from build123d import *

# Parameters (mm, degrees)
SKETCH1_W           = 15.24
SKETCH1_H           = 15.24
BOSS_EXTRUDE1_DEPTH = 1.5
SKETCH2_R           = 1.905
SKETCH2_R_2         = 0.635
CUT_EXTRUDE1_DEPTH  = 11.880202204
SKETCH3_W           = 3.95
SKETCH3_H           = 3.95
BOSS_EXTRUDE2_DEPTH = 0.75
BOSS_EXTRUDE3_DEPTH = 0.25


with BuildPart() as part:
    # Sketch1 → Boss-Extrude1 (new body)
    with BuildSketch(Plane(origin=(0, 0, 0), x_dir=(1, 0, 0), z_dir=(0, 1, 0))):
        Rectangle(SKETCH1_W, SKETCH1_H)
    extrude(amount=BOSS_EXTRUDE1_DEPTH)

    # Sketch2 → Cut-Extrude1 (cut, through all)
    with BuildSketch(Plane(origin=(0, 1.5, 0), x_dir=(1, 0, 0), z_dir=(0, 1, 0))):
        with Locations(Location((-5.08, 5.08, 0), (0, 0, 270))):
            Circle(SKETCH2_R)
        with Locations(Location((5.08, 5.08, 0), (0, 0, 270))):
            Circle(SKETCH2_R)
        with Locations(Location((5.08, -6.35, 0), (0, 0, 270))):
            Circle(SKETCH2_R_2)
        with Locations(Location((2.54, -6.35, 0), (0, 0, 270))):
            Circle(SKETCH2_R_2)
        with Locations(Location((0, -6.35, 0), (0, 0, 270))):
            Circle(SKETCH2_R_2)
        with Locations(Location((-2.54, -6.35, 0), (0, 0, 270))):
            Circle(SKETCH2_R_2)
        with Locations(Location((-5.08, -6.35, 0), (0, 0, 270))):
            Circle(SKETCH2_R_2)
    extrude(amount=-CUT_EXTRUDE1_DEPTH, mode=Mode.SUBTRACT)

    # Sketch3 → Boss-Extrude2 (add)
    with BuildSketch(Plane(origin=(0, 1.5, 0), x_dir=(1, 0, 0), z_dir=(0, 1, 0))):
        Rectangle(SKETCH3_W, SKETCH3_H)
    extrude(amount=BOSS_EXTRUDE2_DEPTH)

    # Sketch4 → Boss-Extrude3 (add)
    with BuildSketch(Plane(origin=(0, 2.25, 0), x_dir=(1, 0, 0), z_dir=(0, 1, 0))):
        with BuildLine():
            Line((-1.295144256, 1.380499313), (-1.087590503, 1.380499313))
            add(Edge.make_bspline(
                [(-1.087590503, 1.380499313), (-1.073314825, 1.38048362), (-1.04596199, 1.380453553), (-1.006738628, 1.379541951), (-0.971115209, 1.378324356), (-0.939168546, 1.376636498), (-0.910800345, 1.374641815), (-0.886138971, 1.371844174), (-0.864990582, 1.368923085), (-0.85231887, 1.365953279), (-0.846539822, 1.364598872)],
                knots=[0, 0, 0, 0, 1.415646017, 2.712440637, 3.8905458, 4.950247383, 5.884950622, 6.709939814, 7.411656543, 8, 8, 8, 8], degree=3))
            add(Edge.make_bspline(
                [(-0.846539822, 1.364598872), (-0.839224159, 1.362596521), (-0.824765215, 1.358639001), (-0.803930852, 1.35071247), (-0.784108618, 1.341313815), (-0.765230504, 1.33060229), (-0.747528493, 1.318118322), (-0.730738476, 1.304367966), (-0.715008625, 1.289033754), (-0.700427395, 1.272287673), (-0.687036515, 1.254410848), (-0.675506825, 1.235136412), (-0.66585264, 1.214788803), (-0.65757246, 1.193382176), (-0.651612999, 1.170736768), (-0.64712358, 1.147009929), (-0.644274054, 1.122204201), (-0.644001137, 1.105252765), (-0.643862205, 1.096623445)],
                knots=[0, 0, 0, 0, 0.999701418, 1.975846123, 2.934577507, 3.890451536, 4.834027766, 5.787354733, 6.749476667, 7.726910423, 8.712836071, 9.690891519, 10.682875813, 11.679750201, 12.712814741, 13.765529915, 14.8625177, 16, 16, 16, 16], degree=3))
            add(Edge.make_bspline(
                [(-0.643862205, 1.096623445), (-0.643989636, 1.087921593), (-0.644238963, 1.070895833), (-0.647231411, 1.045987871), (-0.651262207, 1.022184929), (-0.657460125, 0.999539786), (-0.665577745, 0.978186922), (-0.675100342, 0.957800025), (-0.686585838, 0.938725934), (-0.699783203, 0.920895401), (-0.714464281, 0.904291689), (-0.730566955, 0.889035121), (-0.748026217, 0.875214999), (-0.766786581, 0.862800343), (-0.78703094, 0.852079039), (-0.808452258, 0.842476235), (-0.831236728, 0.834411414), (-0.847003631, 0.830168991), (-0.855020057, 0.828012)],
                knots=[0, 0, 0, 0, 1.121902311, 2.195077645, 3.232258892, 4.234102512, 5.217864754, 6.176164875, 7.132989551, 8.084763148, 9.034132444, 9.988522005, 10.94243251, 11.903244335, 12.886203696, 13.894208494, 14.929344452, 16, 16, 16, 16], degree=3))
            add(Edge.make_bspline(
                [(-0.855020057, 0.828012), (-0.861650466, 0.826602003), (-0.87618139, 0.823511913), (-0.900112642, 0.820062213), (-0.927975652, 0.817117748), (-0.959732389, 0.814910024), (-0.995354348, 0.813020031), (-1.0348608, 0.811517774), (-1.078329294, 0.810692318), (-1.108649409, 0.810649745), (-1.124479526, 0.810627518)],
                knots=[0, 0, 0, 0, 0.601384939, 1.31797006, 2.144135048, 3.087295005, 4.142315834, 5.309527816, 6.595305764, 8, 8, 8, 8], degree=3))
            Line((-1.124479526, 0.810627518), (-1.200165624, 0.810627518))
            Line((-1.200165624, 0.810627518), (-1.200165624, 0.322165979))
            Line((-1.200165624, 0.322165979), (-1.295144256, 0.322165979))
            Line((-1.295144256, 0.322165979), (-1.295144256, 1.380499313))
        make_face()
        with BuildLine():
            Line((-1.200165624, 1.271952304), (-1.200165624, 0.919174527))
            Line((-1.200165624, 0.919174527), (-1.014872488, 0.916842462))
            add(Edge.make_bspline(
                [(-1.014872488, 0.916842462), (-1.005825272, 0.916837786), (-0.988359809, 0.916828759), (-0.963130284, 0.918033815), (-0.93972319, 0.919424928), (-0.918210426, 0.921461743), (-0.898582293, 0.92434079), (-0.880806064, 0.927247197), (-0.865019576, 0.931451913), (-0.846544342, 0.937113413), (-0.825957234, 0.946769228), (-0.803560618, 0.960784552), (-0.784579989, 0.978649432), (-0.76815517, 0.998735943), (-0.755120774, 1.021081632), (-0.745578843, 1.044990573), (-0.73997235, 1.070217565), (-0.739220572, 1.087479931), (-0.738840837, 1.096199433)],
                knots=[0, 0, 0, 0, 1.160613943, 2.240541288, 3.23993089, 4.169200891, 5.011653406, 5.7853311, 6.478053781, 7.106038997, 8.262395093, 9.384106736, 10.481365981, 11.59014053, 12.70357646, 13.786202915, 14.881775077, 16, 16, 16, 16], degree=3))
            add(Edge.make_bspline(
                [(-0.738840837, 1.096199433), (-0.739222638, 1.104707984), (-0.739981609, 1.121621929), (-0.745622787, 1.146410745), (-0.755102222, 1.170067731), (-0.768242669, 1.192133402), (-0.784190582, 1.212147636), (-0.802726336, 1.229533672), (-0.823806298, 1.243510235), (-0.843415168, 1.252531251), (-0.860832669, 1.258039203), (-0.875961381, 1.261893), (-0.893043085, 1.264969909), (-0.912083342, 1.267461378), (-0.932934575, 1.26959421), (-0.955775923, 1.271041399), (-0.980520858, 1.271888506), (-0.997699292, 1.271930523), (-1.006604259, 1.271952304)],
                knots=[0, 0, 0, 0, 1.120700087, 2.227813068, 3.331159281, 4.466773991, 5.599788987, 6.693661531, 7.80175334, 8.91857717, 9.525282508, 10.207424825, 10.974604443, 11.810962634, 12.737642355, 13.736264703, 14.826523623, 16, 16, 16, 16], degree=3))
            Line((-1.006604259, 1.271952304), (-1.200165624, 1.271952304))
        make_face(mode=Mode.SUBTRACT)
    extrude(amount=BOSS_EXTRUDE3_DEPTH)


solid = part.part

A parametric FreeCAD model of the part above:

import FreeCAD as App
import Part
import Sketcher
from FreeCAD import Vector
Q = App.Units.Quantity

doc = App.newDocument("Part")
body = doc.addObject("PartDesign::Body", "Body")

# Sketch on XZ plane
sketch1 = body.newObject("Sketcher::SketchObject", "Sketch")
sketch1.AttachmentSupport = (doc.getObject("XZ_Plane"), [""])
sketch1.MapMode = "FlatFace"
sketch1.addGeometry([
    Part.LineSegment(Vector(-7.62, -7.62, 0), Vector(-7.62, 7.62, 0)),
    Part.LineSegment(Vector(-7.62, 7.62, 0), Vector(7.62, 7.62, 0)),
    Part.LineSegment(Vector(7.62, 7.62, 0), Vector(7.62, -7.62, 0)),
    Part.LineSegment(Vector(7.62, -7.62, 0), Vector(-7.62, -7.62, 0)),
], False)
sketch1.addConstraint([
    Sketcher.Constraint("Coincident", 0, 2, 1, 1),
    Sketcher.Constraint("Coincident", 1, 2, 2, 1),
    Sketcher.Constraint("Coincident", 2, 2, 3, 1),
    Sketcher.Constraint("Coincident", 3, 2, 0, 1),
    Sketcher.Constraint("Vertical", 0),
    Sketcher.Constraint("Horizontal", 1),
    Sketcher.Constraint("Vertical", 2),
    Sketcher.Constraint("Horizontal", 3),
    Sketcher.Constraint("Symmetric", 0, 2, 2, 2, -1, 1),
    Sketcher.Constraint("Equal", 3, 0),
    Sketcher.Constraint("DistanceX", 1, 1, 1, 2, Q("0.6 in")),
])
pad1 = body.newObject("PartDesign::Pad", "Pad")
pad1.Profile = sketch1
pad1.Length = 1.5
pad1.Reversed = True

# Sketch on XZ plane
sketch2 = body.newObject("Sketcher::SketchObject", "Sketch001")
sketch2.AttachmentSupport = (doc.getObject("XZ_Plane"), [""])
sketch2.MapMode = "FlatFace"
sketch2.AttachmentOffset = App.Placement(Vector(0, 0, -1.5), App.Rotation())
sketch2.addGeometry([
    Part.Circle(Vector(-5.08, -5.08, 0), Vector(0, 0, 1), 1.905),  # 0
    Part.Circle(Vector(5.08, -5.08, 0), Vector(0, 0, 1), 1.905),  # 1
    Part.Circle(Vector(5.08, 6.35, 0), Vector(0, 0, 1), 0.635),  # 2
    Part.Circle(Vector(2.54, 6.35, 0), Vector(0, 0, 1), 0.635),  # 3
    Part.Circle(Vector(0, 6.35, 0), Vector(0, 0, 1), 0.635),  # 4
    Part.Circle(Vector(-2.54, 6.35, 0), Vector(0, 0, 1), 0.635),  # 5
    Part.Circle(Vector(-5.08, 6.35, 0), Vector(0, 0, 1), 0.635),  # 6
], False)
sketch2.addConstraint([
    Sketcher.Constraint("Equal", 0, 1),
    Sketcher.Constraint("Equal", 2, 3),
    Sketcher.Constraint("Equal", 3, 4),
    Sketcher.Constraint("Equal", 4, 5),
    Sketcher.Constraint("Equal", 5, 6),
    Sketcher.Constraint("Symmetric", 0, 3, 1, 3, -2),
    Sketcher.Constraint("Symmetric", 3, 3, 5, 3, -2),
    Sketcher.Constraint("Symmetric", 2, 3, 6, 3, -2),
    Sketcher.Constraint("PointOnObject", 4, 3, -2),
    Sketcher.Constraint("Horizontal", 2, 3, 3, 3),
    Sketcher.Constraint("Horizontal", 3, 3, 4, 3),
    Sketcher.Constraint("Vertical", 1, 3, 2, 3),
    Sketcher.Constraint("Diameter", 0, Q("0.15 in")),
    Sketcher.Constraint("Diameter", 2, Q("0.05 in")),
    Sketcher.Constraint("DistanceX", 0, 3, -1, 1, Q("0.2 in")),
    Sketcher.Constraint("DistanceY", 0, 3, -1, 1, Q("0.2 in")),
    Sketcher.Constraint("DistanceX", -1, 1, 3, 3, Q("0.1 in")),
    Sketcher.Constraint("DistanceY", -1, 1, 2, 3, Q("0.25 in")),
])
pocket1 = body.newObject("PartDesign::Pocket", "Pocket")
pocket1.Profile = sketch2
pocket1.Type = "ThroughAll"
pocket1.Reversed = True

# Sketch on XZ plane
sketch3 = body.newObject("Sketcher::SketchObject", "Sketch002")
sketch3.AttachmentSupport = (doc.getObject("XZ_Plane"), [""])
sketch3.MapMode = "FlatFace"
sketch3.AttachmentOffset = App.Placement(Vector(0, 0, -1.5), App.Rotation())
sketch3.addGeometry([
    Part.LineSegment(Vector(-1.975, -1.975, 0), Vector(-1.975, 1.975, 0)),
    Part.LineSegment(Vector(-1.975, 1.975, 0), Vector(1.975, 1.975, 0)),
    Part.LineSegment(Vector(1.975, 1.975, 0), Vector(1.975, -1.975, 0)),
    Part.LineSegment(Vector(1.975, -1.975, 0), Vector(-1.975, -1.975, 0)),
], False)
sketch3.addConstraint([
    Sketcher.Constraint("Coincident", 0, 2, 1, 1),
    Sketcher.Constraint("Coincident", 1, 2, 2, 1),
    Sketcher.Constraint("Coincident", 2, 2, 3, 1),
    Sketcher.Constraint("Coincident", 3, 2, 0, 1),
    Sketcher.Constraint("Vertical", 0),
    Sketcher.Constraint("Horizontal", 1),
    Sketcher.Constraint("Vertical", 2),
    Sketcher.Constraint("Horizontal", 3),
    Sketcher.Constraint("Symmetric", 0, 2, 2, 2, -1, 1),
    Sketcher.Constraint("Equal", 3, 0),
    Sketcher.Constraint("DistanceX", 1, 1, 1, 2, 3.95),
])
pad2 = body.newObject("PartDesign::Pad", "Pad001")
pad2.Profile = sketch3
pad2.Length = 0.75
pad2.Reversed = True

# Sketch on XZ plane
sketch4 = body.newObject("Sketcher::SketchObject", "Sketch003")
sketch4.AttachmentSupport = (doc.getObject("XZ_Plane"), [""])
sketch4.MapMode = "FlatFace"
sketch4.AttachmentOffset = App.Placement(Vector(0, 0, -2.25), App.Rotation())
sketch4.addGeometry([
    Part.LineSegment(Vector(-1.087591, -1.380499, 0), Vector(-1.295144, -1.380499, 0)),  # 0
    Part.LineSegment(Vector(-1.295144, -1.380499, 0), Vector(-1.295144, -0.322166, 0)),  # 1
    Part.LineSegment(Vector(-1.295144, -0.322166, 0), Vector(-1.200166, -0.322166, 0)),  # 2
    Part.LineSegment(Vector(-1.200166, -0.322166, 0), Vector(-1.200166, -0.810628, 0)),  # 3
    Part.LineSegment(Vector(-1.200166, -0.810628, 0), Vector(-1.12448, -0.810628, 0)),  # 4
    Part.BSplineCurve([Vector(-0.85502, -0.828012, 0), Vector(-0.86165, -0.826602, 0), Vector(-0.876181, -0.823512, 0), Vector(-0.900113, -0.820062, 0), Vector(-0.927976, -0.817118, 0), Vector(-0.959732, -0.81491, 0), Vector(-0.995354, -0.81302, 0), Vector(-1.034861, -0.811518, 0), Vector(-1.078329, -0.810692, 0), Vector(-1.108649, -0.81065, 0), Vector(-1.12448, -0.810628, 0)], [4, 1, 1, 1, 1, 1, 1, 1, 4], [0, 0.601384939, 1.31797006, 2.144135048, 3.087295005, 4.142315834, 5.309527816, 6.595305764, 8], False, 3, [1, 1, 1, 1, 1, 1, 1, 1, 1, 1, 1], False),  # 5
    Part.BSplineCurve([Vector(-0.643862, -1.096623, 0), Vector(-0.64399, -1.087922, 0), Vector(-0.644239, -1.070896, 0), Vector(-0.647231, -1.045988, 0), Vector(-0.651262, -1.022185, 0), Vector(-0.65746, -0.99954, 0), Vector(-0.665578, -0.978187, 0), Vector(-0.6751, -0.9578, 0), Vector(-0.686586, -0.938726, 0), Vector(-0.699783, -0.920895, 0), Vector(-0.714464, -0.904292, 0), Vector(-0.730567, -0.889035, 0), Vector(-0.748026, -0.875215, 0), Vector(-0.766787, -0.8628, 0), Vector(-0.787031, -0.852079, 0), Vector(-0.808452, -0.842476, 0), Vector(-0.831237, -0.834411, 0), Vector(-0.847004, -0.830169, 0), Vector(-0.85502, -0.828012, 0)], [4, 1, 1, 1, 1, 1, 1, 1, 1, 1, 1, 1, 1, 1, 1, 1, 4], [0, 1.121902311, 2.195077645, 3.232258892, 4.234102512, 5.217864754, 6.176164875, 7.132989551, 8.084763148, 9.034132444, 9.988522005, 10.94243251, 11.903244335, 12.886203696, 13.894208494, 14.929344452, 16], False, 3, [1, 1, 1, 1, 1, 1, 1, 1, 1, 1, 1, 1, 1, 1, 1, 1, 1, 1, 1], False),  # 6
    Part.BSplineCurve([Vector(-0.84654, -1.364599, 0), Vector(-0.839224, -1.362597, 0), Vector(-0.824765, -1.358639, 0), Vector(-0.803931, -1.350712, 0), Vector(-0.784109, -1.341314, 0), Vector(-0.765231, -1.330602, 0), Vector(-0.747528, -1.318118, 0), Vector(-0.730738, -1.304368, 0), Vector(-0.715009, -1.289034, 0), Vector(-0.700427, -1.272288, 0), Vector(-0.687037, -1.254411, 0), Vector(-0.675507, -1.235136, 0), Vector(-0.665853, -1.214789, 0), Vector(-0.657572, -1.193382, 0), Vector(-0.651613, -1.170737, 0), Vector(-0.647124, -1.14701, 0), Vector(-0.644274, -1.122204, 0), Vector(-0.644001, -1.105253, 0), Vector(-0.643862, -1.096623, 0)], [4, 1, 1, 1, 1, 1, 1, 1, 1, 1, 1, 1, 1, 1, 1, 1, 4], [0, 0.999701418, 1.975846123, 2.934577507, 3.890451536, 4.834027766, 5.787354733, 6.749476667, 7.726910423, 8.712836071, 9.690891519, 10.682875813, 11.679750201, 12.712814741, 13.765529915, 14.8625177, 16], False, 3, [1, 1, 1, 1, 1, 1, 1, 1, 1, 1, 1, 1, 1, 1, 1, 1, 1, 1, 1], False),  # 7
    Part.BSplineCurve([Vector(-1.087591, -1.380499, 0), Vector(-1.073315, -1.380484, 0), Vector(-1.045962, -1.380454, 0), Vector(-1.006739, -1.379542, 0), Vector(-0.971115, -1.378324, 0), Vector(-0.939169, -1.376636, 0), Vector(-0.9108, -1.374642, 0), Vector(-0.886139, -1.371844, 0), Vector(-0.864991, -1.368923, 0), Vector(-0.852319, -1.365953, 0), Vector(-0.84654, -1.364599, 0)], [4, 1, 1, 1, 1, 1, 1, 1, 4], [0, 1.415646017, 2.712440637, 3.8905458, 4.950247383, 5.884950622, 6.709939814, 7.411656543, 8], False, 3, [1, 1, 1, 1, 1, 1, 1, 1, 1, 1, 1], False),  # 8
    Part.LineSegment(Vector(-1.200166, -1.271952, 0), Vector(-1.006604, -1.271952, 0)),  # 9
    Part.BSplineCurve([Vector(-0.738841, -1.096199, 0), Vector(-0.739223, -1.104708, 0), Vector(-0.739982, -1.121622, 0), Vector(-0.745623, -1.146411, 0), Vector(-0.755102, -1.170068, 0), Vector(-0.768243, -1.192133, 0), Vector(-0.784191, -1.212148, 0), Vector(-0.802726, -1.229534, 0), Vector(-0.823806, -1.24351, 0), Vector(-0.843415, -1.252531, 0), Vector(-0.860833, -1.258039, 0), Vector(-0.875961, -1.261893, 0), Vector(-0.893043, -1.26497, 0), Vector(-0.912083, -1.267461, 0), Vector(-0.932935, -1.269594, 0), Vector(-0.955776, -1.271041, 0), Vector(-0.980521, -1.271889, 0), Vector(-0.997699, -1.271931, 0), Vector(-1.006604, -1.271952, 0)], [4, 1, 1, 1, 1, 1, 1, 1, 1, 1, 1, 1, 1, 1, 1, 1, 4], [0, 1.120700087, 2.227813068, 3.331159281, 4.466773991, 5.599788987, 6.693661531, 7.80175334, 8.91857717, 9.525282508, 10.207424825, 10.974604443, 11.810962634, 12.737642355, 13.736264703, 14.826523623, 16], False, 3, [1, 1, 1, 1, 1, 1, 1, 1, 1, 1, 1, 1, 1, 1, 1, 1, 1, 1, 1], False),  # 10
    Part.BSplineCurve([Vector(-1.014872, -0.916842, 0), Vector(-1.005825, -0.916838, 0), Vector(-0.98836, -0.916829, 0), Vector(-0.96313, -0.918034, 0), Vector(-0.939723, -0.919425, 0), Vector(-0.91821, -0.921462, 0), Vector(-0.898582, -0.924341, 0), Vector(-0.880806, -0.927247, 0), Vector(-0.86502, -0.931452, 0), Vector(-0.846544, -0.937113, 0), Vector(-0.825957, -0.946769, 0), Vector(-0.803561, -0.960785, 0), Vector(-0.78458, -0.978649, 0), Vector(-0.768155, -0.998736, 0), Vector(-0.755121, -1.021082, 0), Vector(-0.745579, -1.044991, 0), Vector(-0.739972, -1.070218, 0), Vector(-0.739221, -1.08748, 0), Vector(-0.738841, -1.096199, 0)], [4, 1, 1, 1, 1, 1, 1, 1, 1, 1, 1, 1, 1, 1, 1, 1, 4], [0, 1.160613943, 2.240541288, 3.23993089, 4.169200891, 5.011653406, 5.7853311, 6.478053781, 7.106038997, 8.262395093, 9.384106736, 10.481365981, 11.59014053, 12.70357646, 13.786202915, 14.881775077, 16], False, 3, [1, 1, 1, 1, 1, 1, 1, 1, 1, 1, 1, 1, 1, 1, 1, 1, 1, 1, 1], False),  # 11
    Part.LineSegment(Vector(-1.014872, -0.916842, 0), Vector(-1.200166, -0.919175, 0)),  # 12
    Part.LineSegment(Vector(-1.200166, -0.919175, 0), Vector(-1.200166, -1.271952, 0)),  # 13
], False)
sketch4.addConstraint([
    Sketcher.Constraint("Block", 5),
    Sketcher.Constraint("Block", 6),
    Sketcher.Constraint("Block", 7),
    Sketcher.Constraint("Block", 8),
    Sketcher.Constraint("Block", 10),
    Sketcher.Constraint("Block", 11),
    Sketcher.Constraint("Coincident", 0, 2, 1, 1),
    Sketcher.Constraint("Coincident", 1, 2, 2, 1),
    Sketcher.Constraint("Coincident", 2, 2, 3, 1),
    Sketcher.Constraint("Coincident", 3, 2, 4, 1),
    Sketcher.Constraint("Coincident", 4, 2, 5, 2),
    Sketcher.Constraint("Coincident", 8, 1, 0, 1),
    Sketcher.Constraint("Coincident", 9, 2, 10, 2),
    Sketcher.Constraint("Coincident", 11, 1, 12, 1),
    Sketcher.Constraint("Coincident", 12, 2, 13, 1),
    Sketcher.Constraint("Coincident", 13, 2, 9, 1),
    Sketcher.Constraint("Horizontal", 0),
    Sketcher.Constraint("Vertical", 1),
    Sketcher.Constraint("Horizontal", 2),
    Sketcher.Constraint("Vertical", 3),
    Sketcher.Constraint("Horizontal", 4),
    Sketcher.Constraint("Horizontal", 9),
    Sketcher.Constraint("Vertical", 13),
    Sketcher.Constraint("Vertical", 3, 2, 12, 2),
    Sketcher.Constraint("DistanceX", 2, 1, 2, 2, 0.094979),
    Sketcher.Constraint("DistanceX", 9, 1, 9, 2, 0.193561),
    Sketcher.Constraint("DistanceY", 3, 2, 3, 1, 0.488462),
    Sketcher.Constraint("DistanceY", 13, 2, 13, 1, 0.352778),
])
pad3 = body.newObject("PartDesign::Pad", "Pad002")
pad3.Profile = sketch4
pad3.Length = 0.25
pad3.Reversed = True

doc.recompute()
